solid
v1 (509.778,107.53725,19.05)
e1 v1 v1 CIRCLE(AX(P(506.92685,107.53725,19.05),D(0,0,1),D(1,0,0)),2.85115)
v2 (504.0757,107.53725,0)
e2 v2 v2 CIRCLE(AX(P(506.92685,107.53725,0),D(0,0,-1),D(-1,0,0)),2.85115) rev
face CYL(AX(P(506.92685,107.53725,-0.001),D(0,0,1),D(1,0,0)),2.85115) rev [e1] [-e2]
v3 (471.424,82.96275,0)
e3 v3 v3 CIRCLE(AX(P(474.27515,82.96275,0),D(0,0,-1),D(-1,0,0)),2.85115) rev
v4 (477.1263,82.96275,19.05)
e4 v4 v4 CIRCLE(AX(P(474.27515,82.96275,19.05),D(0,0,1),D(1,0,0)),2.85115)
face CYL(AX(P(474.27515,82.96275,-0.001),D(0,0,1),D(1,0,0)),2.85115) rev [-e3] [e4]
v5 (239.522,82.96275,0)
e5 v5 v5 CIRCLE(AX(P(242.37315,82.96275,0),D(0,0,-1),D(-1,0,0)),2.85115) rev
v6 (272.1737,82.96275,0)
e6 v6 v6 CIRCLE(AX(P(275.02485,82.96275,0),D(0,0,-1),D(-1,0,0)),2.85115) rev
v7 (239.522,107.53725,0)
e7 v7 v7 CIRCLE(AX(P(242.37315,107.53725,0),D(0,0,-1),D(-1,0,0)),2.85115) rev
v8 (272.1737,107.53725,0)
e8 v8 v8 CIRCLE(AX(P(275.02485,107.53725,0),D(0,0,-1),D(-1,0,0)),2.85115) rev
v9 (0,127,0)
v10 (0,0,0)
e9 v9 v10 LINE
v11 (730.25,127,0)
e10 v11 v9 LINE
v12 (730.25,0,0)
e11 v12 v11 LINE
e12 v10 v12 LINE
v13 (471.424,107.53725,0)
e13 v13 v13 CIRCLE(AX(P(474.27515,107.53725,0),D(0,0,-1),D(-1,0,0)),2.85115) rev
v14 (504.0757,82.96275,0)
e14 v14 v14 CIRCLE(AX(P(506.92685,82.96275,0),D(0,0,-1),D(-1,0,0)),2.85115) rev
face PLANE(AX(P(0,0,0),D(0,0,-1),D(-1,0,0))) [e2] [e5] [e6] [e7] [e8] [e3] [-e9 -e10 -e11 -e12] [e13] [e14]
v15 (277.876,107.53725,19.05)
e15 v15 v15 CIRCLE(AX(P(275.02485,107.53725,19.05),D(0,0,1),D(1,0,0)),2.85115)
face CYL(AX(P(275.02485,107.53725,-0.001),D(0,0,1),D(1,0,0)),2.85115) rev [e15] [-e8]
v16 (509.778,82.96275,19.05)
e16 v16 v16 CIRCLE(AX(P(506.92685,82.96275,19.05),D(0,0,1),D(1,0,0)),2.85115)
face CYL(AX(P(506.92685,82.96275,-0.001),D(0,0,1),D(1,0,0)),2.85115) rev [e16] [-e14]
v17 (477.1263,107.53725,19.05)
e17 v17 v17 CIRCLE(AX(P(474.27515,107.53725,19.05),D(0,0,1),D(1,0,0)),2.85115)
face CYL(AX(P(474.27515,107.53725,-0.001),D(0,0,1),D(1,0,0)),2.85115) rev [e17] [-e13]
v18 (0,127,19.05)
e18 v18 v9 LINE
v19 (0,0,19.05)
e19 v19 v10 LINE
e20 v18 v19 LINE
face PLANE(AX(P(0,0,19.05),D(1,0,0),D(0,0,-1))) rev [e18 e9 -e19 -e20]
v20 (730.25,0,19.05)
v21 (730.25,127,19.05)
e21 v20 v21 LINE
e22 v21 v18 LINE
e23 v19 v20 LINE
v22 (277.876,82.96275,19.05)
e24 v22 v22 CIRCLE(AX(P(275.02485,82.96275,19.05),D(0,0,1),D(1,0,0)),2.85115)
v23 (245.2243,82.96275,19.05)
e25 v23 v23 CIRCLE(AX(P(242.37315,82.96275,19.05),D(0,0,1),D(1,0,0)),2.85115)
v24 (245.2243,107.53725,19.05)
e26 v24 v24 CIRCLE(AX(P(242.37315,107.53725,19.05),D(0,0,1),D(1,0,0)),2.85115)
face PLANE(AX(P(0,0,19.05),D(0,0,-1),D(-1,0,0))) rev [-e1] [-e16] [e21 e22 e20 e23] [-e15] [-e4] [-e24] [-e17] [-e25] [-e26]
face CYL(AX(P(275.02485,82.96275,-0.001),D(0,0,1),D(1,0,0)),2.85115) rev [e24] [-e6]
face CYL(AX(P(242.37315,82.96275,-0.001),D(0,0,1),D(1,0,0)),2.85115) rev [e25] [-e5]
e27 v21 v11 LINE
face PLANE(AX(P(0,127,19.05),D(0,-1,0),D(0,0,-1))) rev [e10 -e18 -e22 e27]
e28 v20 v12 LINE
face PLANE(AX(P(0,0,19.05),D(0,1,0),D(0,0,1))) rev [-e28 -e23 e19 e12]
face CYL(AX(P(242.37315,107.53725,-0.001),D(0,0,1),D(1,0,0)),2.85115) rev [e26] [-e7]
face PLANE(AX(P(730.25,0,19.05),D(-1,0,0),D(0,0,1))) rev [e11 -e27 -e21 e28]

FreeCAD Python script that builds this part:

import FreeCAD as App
import Part
import Sketcher
from FreeCAD import Vector
Q = App.Units.Quantity

doc = App.newDocument("Part")
body = doc.addObject("PartDesign::Body", "Body")

sketch1 = body.newObject("Sketcher::SketchObject", "Sketch")
sketch1.AttachmentSupport = (doc.getObject("XY_Plane"), [""])
sketch1.MapMode = "FlatFace"
sketch1.addGeometry([
    Part.LineSegment(Vector(0, 127, 0), Vector(0, 0, 0)),
    Part.LineSegment(Vector(0, 0, 0), Vector(730, 0, 0)),
    Part.LineSegment(Vector(730, 0, 0), Vector(730, 127, 0)),
    Part.LineSegment(Vector(730, 127, 0), Vector(0, 127, 0)),
], False)
sketch1.addConstraint([
    Sketcher.Constraint("Coincident", 0, 2, 1, 1),
    Sketcher.Constraint("Coincident", 1, 2, 2, 1),
    Sketcher.Constraint("Coincident", 2, 2, 3, 1),
    Sketcher.Constraint("Coincident", 3, 2, 0, 1),
    Sketcher.Constraint("Vertical", 0),
    Sketcher.Constraint("Horizontal", 1),
    Sketcher.Constraint("Vertical", 2),
    Sketcher.Constraint("Horizontal", 3),
    Sketcher.Constraint("Coincident", 0, 2, -1, 1),
    Sketcher.Constraint("DistanceY", 0, 2, 0, 1, Q("5 in")),
    Sketcher.Constraint("DistanceX", 1, 1, 1, 2, Q("28.75 in")),
])
pad1 = body.newObject("PartDesign::Pad", "Pad")
pad1.Profile = sketch1
pad1.Length = Q("0.75 in")

sketch2 = body.newObject("Sketcher::SketchObject", "Sketch001")
sketch2.AttachmentSupport = (doc.getObject("XY_Plane"), [""])
sketch2.MapMode = "FlatFace"
sketch2.AttachmentOffset = App.Placement(Vector(0, 0, 0.75 * 25.4), App.Rotation())
sketch2.addGeometry(Part.Circle(Vector(242.4, 83, 0), Vector(0, 0, 1), 2.9), False)
sketch2.addConstraint([
    Sketcher.Constraint("Diameter", 0, Q("0.2245 in")),
    Sketcher.Constraint("DistanceX", -1, 1, 0, 3, 242.37315),
    Sketcher.Constraint("DistanceY", -1, 1, 0, 3, 82.96275),
])
pocket1 = body.newObject("PartDesign::Pocket", "Pocket")
pocket1.Profile = sketch2
pocket1.Type = "UpToFirst"

sketch3 = body.newObject("Sketcher::SketchObject", "Sketch002")
sketch3.AttachmentSupport = (doc.getObject("XY_Plane"), [""])
sketch3.MapMode = "FlatFace"
sketch3.AttachmentOffset = App.Placement(Vector(0, 0, 0.75 * 25.4), App.Rotation())
sketch3.addGeometry(Part.Circle(Vector(242.4, 107.5, 0), Vector(0, 0, 1), 2.9), False)
sketch3.addConstraint([
    Sketcher.Constraint("Diameter", 0, Q("0.2245 in")),
    Sketcher.Constraint("DistanceX", -1, 1, 0, 3, 242.37315),
    Sketcher.Constraint("DistanceY", -1, 1, 0, 3, 107.53725),
])
pocket2 = body.newObject("PartDesign::Pocket", "Pocket001")
pocket2.Profile = sketch3
pocket2.Type = "UpToFirst"

sketch4 = body.newObject("Sketcher::SketchObject", "Sketch003")
sketch4.AttachmentSupport = (doc.getObject("XY_Plane"), [""])
sketch4.MapMode = "FlatFace"
sketch4.AttachmentOffset = App.Placement(Vector(0, 0, 0.75 * 25.4), App.Rotation())
sketch4.addGeometry(Part.Circle(Vector(275, 107.5, 0), Vector(0, 0, 1), 2.9), False)
sketch4.addConstraint([
    Sketcher.Constraint("Diameter", 0, Q("0.2245 in")),
    Sketcher.Constraint("DistanceX", -1, 1, 0, 3, 275.02485),
    Sketcher.Constraint("DistanceY", -1, 1, 0, 3, 107.53725),
])
pocket3 = body.newObject("PartDesign::Pocket", "Pocket002")
pocket3.Profile = sketch4
pocket3.Type = "UpToFirst"

sketch5 = body.newObject("Sketcher::SketchObject", "Sketch004")
sketch5.AttachmentSupport = (doc.getObject("XY_Plane"), [""])
sketch5.MapMode = "FlatFace"
sketch5.AttachmentOffset = App.Placement(Vector(0, 0, 0.75 * 25.4), App.Rotation())
sketch5.addGeometry(Part.Circle(Vector(275, 83, 0), Vector(0, 0, 1), 2.9), False)
sketch5.addConstraint([
    Sketcher.Constraint("Diameter", 0, Q("0.2245 in")),
    Sketcher.Constraint("DistanceX", -1, 1, 0, 3, 275.02485),
    Sketcher.Constraint("DistanceY", -1, 1, 0, 3, 82.96275),
])
pocket4 = body.newObject("PartDesign::Pocket", "Pocket003")
pocket4.Profile = sketch5
pocket4.Type = "UpToFirst"

sketch6 = body.newObject("Sketcher::SketchObject", "Sketch005")
sketch6.AttachmentSupport = (doc.getObject("XY_Plane"), [""])
sketch6.MapMode = "FlatFace"
sketch6.AttachmentOffset = App.Placement(Vector(0, 0, 0.75 * 25.4), App.Rotation())
sketch6.addGeometry(Part.Circle(Vector(474.3, 83, 0), Vector(0, 0, 1), 2.9), False)
sketch6.addConstraint([
    Sketcher.Constraint("Diameter", 0, Q("0.2245 in")),
    Sketcher.Constraint("DistanceX", -1, 1, 0, 3, 474.27515),
    Sketcher.Constraint("DistanceY", -1, 1, 0, 3, 82.96275),
])
pocket5 = body.newObject("PartDesign::Pocket", "Pocket004")
pocket5.Profile = sketch6
pocket5.Type = "UpToFirst"

sketch7 = body.newObject("Sketcher::SketchObject", "Sketch006")
sketch7.AttachmentSupport = (doc.getObject("XY_Plane"), [""])
sketch7.MapMode = "FlatFace"
sketch7.AttachmentOffset = App.Placement(Vector(0, 0, 0.75 * 25.4), App.Rotation())
sketch7.addGeometry(Part.Circle(Vector(474.3, 107.5, 0), Vector(0, 0, 1), 2.9), False)
sketch7.addConstraint([
    Sketcher.Constraint("Diameter", 0, Q("0.2245 in")),
    Sketcher.Constraint("DistanceX", -1, 1, 0, 3, 474.27515),
    Sketcher.Constraint("DistanceY", -1, 1, 0, 3, 107.53725),
])
pocket6 = body.newObject("PartDesign::Pocket", "Pocket005")
pocket6.Profile = sketch7
pocket6.Type = "UpToFirst"

sketch8 = body.newObject("Sketcher::SketchObject", "Sketch007")
sketch8.AttachmentSupport = (doc.getObject("XY_Plane"), [""])
sketch8.MapMode = "FlatFace"
sketch8.AttachmentOffset = App.Placement(Vector(0, 0, 0.75 * 25.4), App.Rotation())
sketch8.addGeometry(Part.Circle(Vector(506.9, 107.5, 0), Vector(0, 0, 1), 2.9), False)
sketch8.addConstraint([
    Sketcher.Constraint("Diameter", 0, Q("0.2245 in")),
    Sketcher.Constraint("DistanceX", -1, 1, 0, 3, 506.92685),
    Sketcher.Constraint("DistanceY", -1, 1, 0, 3, 107.53725),
])
pocket7 = body.newObject("PartDesign::Pocket", "Pocket006")
pocket7.Profile = sketch8
pocket7.Type = "UpToFirst"

sketch9 = body.newObject("Sketcher::SketchObject", "Sketch008")
sketch9.AttachmentSupport = (doc.getObject("XY_Plane"), [""])
sketch9.MapMode = "FlatFace"
sketch9.AttachmentOffset = App.Placement(Vector(0, 0, 0.75 * 25.4), App.Rotation())
sketch9.addGeometry(Part.Circle(Vector(506.9, 83, 0), Vector(0, 0, 1), 2.9), False)
sketch9.addConstraint([
    Sketcher.Constraint("Diameter", 0, Q("0.2245 in")),
    Sketcher.Constraint("DistanceX", -1, 1, 0, 3, 506.92685),
    Sketcher.Constraint("DistanceY", -1, 1, 0, 3, 82.96275),
])
pocket8 = body.newObject("PartDesign::Pocket", "Pocket007")
pocket8.Profile = sketch9
pocket8.Type = "UpToFirst"

doc.recompute()
